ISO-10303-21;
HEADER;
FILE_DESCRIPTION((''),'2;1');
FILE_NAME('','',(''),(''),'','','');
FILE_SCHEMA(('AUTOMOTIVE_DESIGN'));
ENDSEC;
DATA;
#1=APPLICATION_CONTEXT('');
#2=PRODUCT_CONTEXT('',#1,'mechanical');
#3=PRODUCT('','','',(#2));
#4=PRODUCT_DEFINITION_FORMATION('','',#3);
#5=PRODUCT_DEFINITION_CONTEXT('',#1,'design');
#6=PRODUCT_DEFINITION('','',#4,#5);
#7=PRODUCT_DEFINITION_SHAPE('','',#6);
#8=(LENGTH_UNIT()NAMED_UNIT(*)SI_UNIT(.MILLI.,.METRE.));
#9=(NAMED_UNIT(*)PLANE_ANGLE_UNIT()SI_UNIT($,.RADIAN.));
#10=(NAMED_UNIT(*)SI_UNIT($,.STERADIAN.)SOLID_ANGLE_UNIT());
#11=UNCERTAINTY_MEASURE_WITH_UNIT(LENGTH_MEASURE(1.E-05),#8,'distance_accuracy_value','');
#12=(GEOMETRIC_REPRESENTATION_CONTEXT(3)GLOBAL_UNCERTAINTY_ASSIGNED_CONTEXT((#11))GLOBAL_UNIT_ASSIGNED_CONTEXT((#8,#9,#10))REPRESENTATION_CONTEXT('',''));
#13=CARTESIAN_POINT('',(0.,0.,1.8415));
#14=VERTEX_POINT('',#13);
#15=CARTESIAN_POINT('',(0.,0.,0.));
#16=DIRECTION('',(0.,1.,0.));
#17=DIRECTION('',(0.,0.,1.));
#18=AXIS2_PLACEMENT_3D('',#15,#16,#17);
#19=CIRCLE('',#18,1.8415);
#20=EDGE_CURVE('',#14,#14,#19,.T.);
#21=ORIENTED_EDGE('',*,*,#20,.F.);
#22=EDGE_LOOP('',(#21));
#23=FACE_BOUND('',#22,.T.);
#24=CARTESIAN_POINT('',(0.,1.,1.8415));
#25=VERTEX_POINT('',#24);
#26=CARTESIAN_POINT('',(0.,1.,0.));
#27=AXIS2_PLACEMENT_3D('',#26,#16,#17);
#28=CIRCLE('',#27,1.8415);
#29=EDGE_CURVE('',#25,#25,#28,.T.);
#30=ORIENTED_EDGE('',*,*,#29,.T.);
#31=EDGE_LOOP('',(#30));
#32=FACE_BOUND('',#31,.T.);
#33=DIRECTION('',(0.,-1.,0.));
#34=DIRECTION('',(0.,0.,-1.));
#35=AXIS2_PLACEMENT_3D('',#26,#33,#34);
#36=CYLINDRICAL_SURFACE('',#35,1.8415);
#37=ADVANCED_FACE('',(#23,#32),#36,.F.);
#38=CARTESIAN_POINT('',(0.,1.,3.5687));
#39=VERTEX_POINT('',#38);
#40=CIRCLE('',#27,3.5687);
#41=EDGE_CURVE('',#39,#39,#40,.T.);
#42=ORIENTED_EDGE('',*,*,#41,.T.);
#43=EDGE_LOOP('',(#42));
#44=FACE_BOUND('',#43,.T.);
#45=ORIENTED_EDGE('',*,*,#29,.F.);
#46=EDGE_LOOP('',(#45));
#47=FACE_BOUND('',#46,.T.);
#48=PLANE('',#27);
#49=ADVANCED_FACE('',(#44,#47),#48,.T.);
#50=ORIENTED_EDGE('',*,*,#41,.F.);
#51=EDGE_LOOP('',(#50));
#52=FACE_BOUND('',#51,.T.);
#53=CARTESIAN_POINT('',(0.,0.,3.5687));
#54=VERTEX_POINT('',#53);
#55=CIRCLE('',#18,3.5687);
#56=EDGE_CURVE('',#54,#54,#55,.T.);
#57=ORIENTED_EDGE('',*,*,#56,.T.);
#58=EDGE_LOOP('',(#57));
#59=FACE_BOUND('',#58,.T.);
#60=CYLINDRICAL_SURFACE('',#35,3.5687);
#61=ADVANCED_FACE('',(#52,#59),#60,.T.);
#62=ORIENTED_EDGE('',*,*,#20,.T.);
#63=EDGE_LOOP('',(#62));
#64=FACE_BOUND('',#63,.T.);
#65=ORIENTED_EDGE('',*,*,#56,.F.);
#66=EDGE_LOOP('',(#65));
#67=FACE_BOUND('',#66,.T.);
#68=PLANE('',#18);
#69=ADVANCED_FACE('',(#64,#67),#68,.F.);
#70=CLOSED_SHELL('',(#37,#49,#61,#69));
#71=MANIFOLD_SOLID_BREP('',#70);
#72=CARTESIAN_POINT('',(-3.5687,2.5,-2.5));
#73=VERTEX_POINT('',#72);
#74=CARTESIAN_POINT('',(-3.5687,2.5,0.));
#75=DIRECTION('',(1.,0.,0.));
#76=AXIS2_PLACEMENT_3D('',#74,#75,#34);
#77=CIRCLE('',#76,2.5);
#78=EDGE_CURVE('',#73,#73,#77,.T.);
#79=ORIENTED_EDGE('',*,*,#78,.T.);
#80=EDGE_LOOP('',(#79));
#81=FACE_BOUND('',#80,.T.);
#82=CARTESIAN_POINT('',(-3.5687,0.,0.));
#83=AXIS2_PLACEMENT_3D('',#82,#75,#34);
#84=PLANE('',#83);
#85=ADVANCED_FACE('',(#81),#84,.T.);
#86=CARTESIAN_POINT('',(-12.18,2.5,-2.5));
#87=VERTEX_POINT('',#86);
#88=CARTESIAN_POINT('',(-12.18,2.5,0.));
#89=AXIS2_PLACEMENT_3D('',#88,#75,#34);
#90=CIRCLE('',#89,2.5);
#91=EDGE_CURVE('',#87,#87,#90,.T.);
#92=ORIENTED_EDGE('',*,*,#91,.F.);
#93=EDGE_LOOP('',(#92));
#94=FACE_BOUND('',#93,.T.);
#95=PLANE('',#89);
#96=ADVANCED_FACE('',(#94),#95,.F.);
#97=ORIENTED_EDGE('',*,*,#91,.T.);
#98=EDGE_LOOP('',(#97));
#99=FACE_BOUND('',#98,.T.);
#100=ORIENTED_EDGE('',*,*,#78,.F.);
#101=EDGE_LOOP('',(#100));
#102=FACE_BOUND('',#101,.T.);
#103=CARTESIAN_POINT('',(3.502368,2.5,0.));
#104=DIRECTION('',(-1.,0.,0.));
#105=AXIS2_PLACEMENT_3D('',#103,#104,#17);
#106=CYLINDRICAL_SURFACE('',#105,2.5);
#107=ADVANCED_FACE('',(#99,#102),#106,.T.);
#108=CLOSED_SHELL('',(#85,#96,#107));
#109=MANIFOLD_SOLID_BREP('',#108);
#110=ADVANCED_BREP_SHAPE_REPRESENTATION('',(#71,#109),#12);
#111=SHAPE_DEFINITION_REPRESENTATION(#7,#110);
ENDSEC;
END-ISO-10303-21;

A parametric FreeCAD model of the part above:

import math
import FreeCAD as App
import Part
import Sketcher

V = App.Vector

doc = App.newDocument("Part")
body = doc.addObject("PartDesign::Body", "Body")

# Sketch on YZ plane
sketch1 = body.newObject("Sketcher::SketchObject", "Sketch")
sketch1.AttachmentSupport = (doc.getObject("YZ_Plane"), [""])
sketch1.MapMode = "FlatFace"
sketch1.AttachmentOffset = App.Placement(V(0, 0, -12.18), App.Rotation())
sketch1.addGeometry(Part.Circle(V(2.5, 0, 0), V(0, 0, 1), 2.5), False)
sketch1.addConstraint(Sketcher.Constraint("PointOnObject", 0, 3, -1))
sketch1.addConstraint(Sketcher.Constraint("Diameter", 0, 5.0))
sketch1.addConstraint(Sketcher.Constraint("DistanceX", -1, 1, 0, 3, 2.5))
pad1 = body.newObject("PartDesign::Pad", "Pad")
pad1.Profile = sketch1
pad1.Length = 8.6113
body2 = doc.addObject("PartDesign::Body", "Body001")

# Sketch on XZ plane
sketch2 = body2.newObject("Sketcher::SketchObject", "Sketch001")
sketch2.AttachmentSupport = (doc.getObject("XZ_Plane001"), [""])
sketch2.MapMode = "FlatFace"
sketch2.addGeometry(Part.ArcOfCircle(Part.Circle(V(0, 0, 0), V(0, 0, 1), 3.6), math.radians(-126), math.radians(126)), False)
sketch2.addGeometry(Part.ArcOfCircle(Part.Circle(V(0, 0, 0), V(0, 0, 1), 3.6), math.radians(126), math.radians(234)), False)
sketch2.addGeometry(Part.Circle(V(0, 0, 0), V(0, 0, 1), 1.8), False)
sketch2.addConstraint(Sketcher.Constraint("Tangent", 0, 1, 1, 2))
sketch2.addConstraint(Sketcher.Constraint("Coincident", 1, 1, 0, 2))
sketch2.addConstraint(Sketcher.Constraint("Coincident", 0, 3, -1, 1))
sketch2.addConstraint(Sketcher.Constraint("Coincident", 2, 3, -1, 1))
sketch2.addConstraint(Sketcher.Constraint("Vertical", 0, 1, 1, 1))
sketch2.addConstraint(Sketcher.Constraint("Diameter", 2, 3.683))
sketch2.addConstraint(Sketcher.Constraint("Radius", 0, 3.5687))
sketch2.addConstraint(Sketcher.Constraint("DistanceY", 0, 1, 1, 1, 5.75))
pad2 = body2.newObject("PartDesign::Pad", "Pad001")
pad2.Profile = sketch2
pad2.Length = 1
pad2.Reversed = True

doc.recompute()
